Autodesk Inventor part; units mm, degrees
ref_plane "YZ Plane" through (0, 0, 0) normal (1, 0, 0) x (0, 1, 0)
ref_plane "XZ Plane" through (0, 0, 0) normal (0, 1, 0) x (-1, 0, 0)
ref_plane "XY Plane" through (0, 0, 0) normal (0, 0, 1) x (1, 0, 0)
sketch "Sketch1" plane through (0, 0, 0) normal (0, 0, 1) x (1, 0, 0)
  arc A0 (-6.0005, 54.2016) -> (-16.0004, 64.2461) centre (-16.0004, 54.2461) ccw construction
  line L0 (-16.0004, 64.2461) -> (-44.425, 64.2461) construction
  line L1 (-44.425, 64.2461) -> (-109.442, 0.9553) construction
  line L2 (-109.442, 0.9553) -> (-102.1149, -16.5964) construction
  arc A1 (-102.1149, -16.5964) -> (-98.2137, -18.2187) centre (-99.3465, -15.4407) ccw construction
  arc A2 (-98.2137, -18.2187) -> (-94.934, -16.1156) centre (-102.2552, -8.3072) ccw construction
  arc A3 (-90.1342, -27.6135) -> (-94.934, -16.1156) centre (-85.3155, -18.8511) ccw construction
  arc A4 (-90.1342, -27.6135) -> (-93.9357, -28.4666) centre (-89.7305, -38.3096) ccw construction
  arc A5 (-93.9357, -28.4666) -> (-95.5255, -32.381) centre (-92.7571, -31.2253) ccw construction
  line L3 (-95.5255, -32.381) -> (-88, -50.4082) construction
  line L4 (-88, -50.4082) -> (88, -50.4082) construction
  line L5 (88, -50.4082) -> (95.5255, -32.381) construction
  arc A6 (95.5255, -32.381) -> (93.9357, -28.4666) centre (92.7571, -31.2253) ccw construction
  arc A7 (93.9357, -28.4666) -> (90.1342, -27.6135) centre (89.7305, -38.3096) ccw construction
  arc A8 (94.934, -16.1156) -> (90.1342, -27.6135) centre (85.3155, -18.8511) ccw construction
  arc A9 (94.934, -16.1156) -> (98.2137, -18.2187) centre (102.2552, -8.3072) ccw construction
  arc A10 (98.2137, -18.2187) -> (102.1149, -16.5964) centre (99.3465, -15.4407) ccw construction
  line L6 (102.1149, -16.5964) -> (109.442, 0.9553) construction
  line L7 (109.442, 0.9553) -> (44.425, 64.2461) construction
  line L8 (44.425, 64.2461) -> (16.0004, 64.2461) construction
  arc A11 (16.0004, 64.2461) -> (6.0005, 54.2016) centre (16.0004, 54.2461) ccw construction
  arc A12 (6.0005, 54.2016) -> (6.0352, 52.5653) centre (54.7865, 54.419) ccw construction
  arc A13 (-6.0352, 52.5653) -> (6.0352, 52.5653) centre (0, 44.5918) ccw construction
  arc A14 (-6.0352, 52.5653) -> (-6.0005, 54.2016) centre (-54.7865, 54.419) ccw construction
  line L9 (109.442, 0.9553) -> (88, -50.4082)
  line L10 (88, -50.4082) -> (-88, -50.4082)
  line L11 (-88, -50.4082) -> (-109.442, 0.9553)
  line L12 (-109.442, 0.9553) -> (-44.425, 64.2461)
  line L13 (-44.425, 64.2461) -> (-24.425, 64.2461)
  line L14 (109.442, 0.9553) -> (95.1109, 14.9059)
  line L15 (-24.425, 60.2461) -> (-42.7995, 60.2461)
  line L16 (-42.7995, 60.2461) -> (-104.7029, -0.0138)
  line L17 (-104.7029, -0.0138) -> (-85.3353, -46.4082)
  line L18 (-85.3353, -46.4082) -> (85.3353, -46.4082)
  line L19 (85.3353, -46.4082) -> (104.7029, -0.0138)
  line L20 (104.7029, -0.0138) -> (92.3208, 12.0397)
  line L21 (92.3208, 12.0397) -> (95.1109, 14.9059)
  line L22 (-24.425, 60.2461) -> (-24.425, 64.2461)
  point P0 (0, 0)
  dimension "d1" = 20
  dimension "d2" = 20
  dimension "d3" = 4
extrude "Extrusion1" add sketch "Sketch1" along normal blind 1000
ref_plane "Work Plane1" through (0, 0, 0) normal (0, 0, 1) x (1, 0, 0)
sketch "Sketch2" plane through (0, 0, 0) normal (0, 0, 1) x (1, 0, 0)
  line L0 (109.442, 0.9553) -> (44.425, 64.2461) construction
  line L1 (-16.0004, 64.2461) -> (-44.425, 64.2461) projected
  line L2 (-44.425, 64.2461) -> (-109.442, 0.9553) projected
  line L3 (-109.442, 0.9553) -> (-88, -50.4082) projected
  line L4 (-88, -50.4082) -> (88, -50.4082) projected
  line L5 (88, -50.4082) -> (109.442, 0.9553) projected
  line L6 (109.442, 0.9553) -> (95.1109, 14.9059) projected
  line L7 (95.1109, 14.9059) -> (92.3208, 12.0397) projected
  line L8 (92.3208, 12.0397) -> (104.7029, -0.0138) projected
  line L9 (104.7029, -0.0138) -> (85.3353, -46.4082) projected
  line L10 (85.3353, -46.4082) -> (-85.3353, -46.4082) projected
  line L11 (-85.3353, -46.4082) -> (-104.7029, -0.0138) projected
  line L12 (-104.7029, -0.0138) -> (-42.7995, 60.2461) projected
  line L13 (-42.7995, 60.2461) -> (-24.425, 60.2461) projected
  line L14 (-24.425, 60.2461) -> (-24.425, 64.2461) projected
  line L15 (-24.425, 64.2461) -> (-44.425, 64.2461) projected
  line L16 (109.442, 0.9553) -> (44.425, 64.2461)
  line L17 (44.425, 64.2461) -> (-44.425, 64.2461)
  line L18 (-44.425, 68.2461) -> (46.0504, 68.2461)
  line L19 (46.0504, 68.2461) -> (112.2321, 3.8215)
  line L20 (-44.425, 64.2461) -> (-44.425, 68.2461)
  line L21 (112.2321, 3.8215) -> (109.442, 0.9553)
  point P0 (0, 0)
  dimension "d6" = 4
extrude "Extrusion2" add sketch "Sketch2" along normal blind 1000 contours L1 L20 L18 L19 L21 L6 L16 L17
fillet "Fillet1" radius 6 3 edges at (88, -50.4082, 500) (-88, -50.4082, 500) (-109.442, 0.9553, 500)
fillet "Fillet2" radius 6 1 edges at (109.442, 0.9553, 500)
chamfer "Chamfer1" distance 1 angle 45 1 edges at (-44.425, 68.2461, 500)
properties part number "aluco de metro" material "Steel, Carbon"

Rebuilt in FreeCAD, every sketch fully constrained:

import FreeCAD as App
import Part
import Sketcher
Q = App.Units.Quantity


def edges_at(feature, points):
    """Names of the edges that pass closest to the given points."""
    edges = feature.Shape.Edges
    near = lambda p: min(range(len(edges)), key=lambda i: edges[i].distToShape(Part.Vertex(*p))[0])
    return sorted({f"Edge{near(p) + 1}" for p in points})


def add_polygon(sketch, points):
    """Adds a closed chain of lines whose ends are joined by coincident constraints."""
    first, n = sketch.GeometryCount, len(points)
    for a, b in zip(points, points[1:] + points[:1]):
        sketch.addGeometry(Part.LineSegment(App.Vector(*a, 0), App.Vector(*b, 0)), False)
    for i in range(n):
        sketch.addConstraint(Sketcher.Constraint("Coincident", first + i, 2, first + (i + 1) % n, 1))

doc = App.newDocument("Part")
body = doc.addObject("PartDesign::Body", "Body")

sketch1 = body.newObject("Sketcher::SketchObject", "Sketch")
sketch1.AttachmentSupport = (doc.getObject("XY_Plane"), [""])
sketch1.MapMode = "FlatFace"
add_polygon(sketch1, [(88, -50.4082), (109.442, 0.9553), (95.1109, 14.9059), (92.3208, 12.0397), (104.7029, -0.0138), (85.3353, -46.4082), (-85.3353, -46.4082), (-104.7029, -0.0138), (-42.7995, 60.2461), (-24.425, 60.2461), (-24.425, 64.2461), (-44.425, 64.2461), (-109.442, 0.9553), (-88, -50.4082)])
sketch1.addConstraint([
    Sketcher.Constraint("Horizontal", 5),
    Sketcher.Constraint("Horizontal", 8),
    Sketcher.Constraint("Vertical", 9),
    Sketcher.Constraint("Horizontal", 10),
    Sketcher.Constraint("Horizontal", 13),
    Sketcher.Constraint("Symmetric", 3, 2, 6, 2, -2),
    Sketcher.Constraint("Symmetric", 0, 2, 11, 2, -2),
    Sketcher.Constraint("Perpendicular", 1, 2),
    Sketcher.Constraint("Perpendicular", 2, 3),
    Sketcher.Constraint("Parallel", 0, 4),
    Sketcher.Constraint("Parallel", 7, 11),
    Sketcher.Constraint("Parallel", 6, 12),
    Sketcher.Constraint("Equal", 4, 6),
    Sketcher.Constraint("DistanceX", 10, 2, 10, 1, 20.0),
    Sketcher.Constraint("DistanceY", 9, 1, 9, 2, 4.0),
    Sketcher.Constraint("Distance", 1, 20.0),
    Sketcher.Constraint("Distance", 2, 4.0),
    Sketcher.Constraint("DistanceY", 12, 2, 5, 2, 4.0),
    Sketcher.Constraint("DistanceX", 13, 1, 13, 2, 176.0),
    Sketcher.Constraint("Angle", 1, Q("135.7708 deg")),
    Sketcher.Constraint("Angle", 7, Q("44.2292 deg")),
    Sketcher.Constraint("DistanceY", 6, 2, 7, 2, 60.26),
    Sketcher.Constraint("DistanceX", 5, 2, 5, 1, 170.6706),
    Sketcher.Constraint("DistanceX", -1, 1, 0, 2, 109.442),
    Sketcher.Constraint("DistanceY", -1, 1, 1, 2, 14.906),
    Sketcher.Constraint("DistanceX", -1, 1, 3, 2, 104.703),
])
pad1 = body.newObject("PartDesign::Pad", "Pad")
pad1.Profile = sketch1
pad1.Length = 1000

sketch2 = body.newObject("Sketcher::SketchObject", "Sketch001")
sketch2.AttachmentSupport = (doc.getObject("XY_Plane"), [""])
sketch2.MapMode = "FlatFace"
add_polygon(sketch2, [(-44.425, 64.2461), (44.425, 64.2461), (95.1109, 14.9059), (109.442, 0.9553), (112.2321, 3.8215), (46.0504, 68.2461), (-44.425, 68.2461)])
sketch2.addConstraint([
    Sketcher.Constraint("Horizontal", 0),
    Sketcher.Constraint("Horizontal", 5),
    Sketcher.Constraint("Vertical", 6),
    Sketcher.Constraint("Parallel", 1, 2),
    Sketcher.Constraint("Perpendicular", 2, 3),
    Sketcher.Constraint("Perpendicular", 3, 4),
    Sketcher.Constraint("DistanceY", 6, 2, 6, 1, 4.0),
    Sketcher.Constraint("Distance", 3, 4.0),
    Sketcher.Constraint("Distance", 2, 20.0),
    Sketcher.Constraint("DistanceX", 0, 1, 0, 2, 88.85),
    Sketcher.Constraint("Angle", 1, Q("-44.2292 deg")),
    Sketcher.Constraint("Distance", 4, 92.361),
    Sketcher.Constraint("DistanceX", -1, 1, 0, 2, 44.425),
    Sketcher.Constraint("DistanceY", -1, 1, 0, 2, 64.246),
])
pad2 = body.newObject("PartDesign::Pad", "Pad001")
pad2.Profile = sketch2
pad2.Length = 1000
doc.recompute()

fillet = body.newObject("PartDesign::Fillet", "Fillet")
fillet.Base = (pad2, edges_at(pad2, [(88, -50.408, 500), (-88, -50.408, 500), (-109.442, 0.955, 500)]))
fillet.Radius = 6
doc.recompute()

fillet2 = body.newObject("PartDesign::Fillet", "Fillet001")
fillet2.Base = (fillet, edges_at(fillet, [(109.442, 0.955, 500)]))
fillet2.Radius = 6
doc.recompute()

chamfer = body.newObject("PartDesign::Chamfer", "Chamfer")
chamfer.Base = (fillet2, edges_at(fillet2, [(-44.425, 68.246, 500)]))
chamfer.Size = 1

doc.recompute()
